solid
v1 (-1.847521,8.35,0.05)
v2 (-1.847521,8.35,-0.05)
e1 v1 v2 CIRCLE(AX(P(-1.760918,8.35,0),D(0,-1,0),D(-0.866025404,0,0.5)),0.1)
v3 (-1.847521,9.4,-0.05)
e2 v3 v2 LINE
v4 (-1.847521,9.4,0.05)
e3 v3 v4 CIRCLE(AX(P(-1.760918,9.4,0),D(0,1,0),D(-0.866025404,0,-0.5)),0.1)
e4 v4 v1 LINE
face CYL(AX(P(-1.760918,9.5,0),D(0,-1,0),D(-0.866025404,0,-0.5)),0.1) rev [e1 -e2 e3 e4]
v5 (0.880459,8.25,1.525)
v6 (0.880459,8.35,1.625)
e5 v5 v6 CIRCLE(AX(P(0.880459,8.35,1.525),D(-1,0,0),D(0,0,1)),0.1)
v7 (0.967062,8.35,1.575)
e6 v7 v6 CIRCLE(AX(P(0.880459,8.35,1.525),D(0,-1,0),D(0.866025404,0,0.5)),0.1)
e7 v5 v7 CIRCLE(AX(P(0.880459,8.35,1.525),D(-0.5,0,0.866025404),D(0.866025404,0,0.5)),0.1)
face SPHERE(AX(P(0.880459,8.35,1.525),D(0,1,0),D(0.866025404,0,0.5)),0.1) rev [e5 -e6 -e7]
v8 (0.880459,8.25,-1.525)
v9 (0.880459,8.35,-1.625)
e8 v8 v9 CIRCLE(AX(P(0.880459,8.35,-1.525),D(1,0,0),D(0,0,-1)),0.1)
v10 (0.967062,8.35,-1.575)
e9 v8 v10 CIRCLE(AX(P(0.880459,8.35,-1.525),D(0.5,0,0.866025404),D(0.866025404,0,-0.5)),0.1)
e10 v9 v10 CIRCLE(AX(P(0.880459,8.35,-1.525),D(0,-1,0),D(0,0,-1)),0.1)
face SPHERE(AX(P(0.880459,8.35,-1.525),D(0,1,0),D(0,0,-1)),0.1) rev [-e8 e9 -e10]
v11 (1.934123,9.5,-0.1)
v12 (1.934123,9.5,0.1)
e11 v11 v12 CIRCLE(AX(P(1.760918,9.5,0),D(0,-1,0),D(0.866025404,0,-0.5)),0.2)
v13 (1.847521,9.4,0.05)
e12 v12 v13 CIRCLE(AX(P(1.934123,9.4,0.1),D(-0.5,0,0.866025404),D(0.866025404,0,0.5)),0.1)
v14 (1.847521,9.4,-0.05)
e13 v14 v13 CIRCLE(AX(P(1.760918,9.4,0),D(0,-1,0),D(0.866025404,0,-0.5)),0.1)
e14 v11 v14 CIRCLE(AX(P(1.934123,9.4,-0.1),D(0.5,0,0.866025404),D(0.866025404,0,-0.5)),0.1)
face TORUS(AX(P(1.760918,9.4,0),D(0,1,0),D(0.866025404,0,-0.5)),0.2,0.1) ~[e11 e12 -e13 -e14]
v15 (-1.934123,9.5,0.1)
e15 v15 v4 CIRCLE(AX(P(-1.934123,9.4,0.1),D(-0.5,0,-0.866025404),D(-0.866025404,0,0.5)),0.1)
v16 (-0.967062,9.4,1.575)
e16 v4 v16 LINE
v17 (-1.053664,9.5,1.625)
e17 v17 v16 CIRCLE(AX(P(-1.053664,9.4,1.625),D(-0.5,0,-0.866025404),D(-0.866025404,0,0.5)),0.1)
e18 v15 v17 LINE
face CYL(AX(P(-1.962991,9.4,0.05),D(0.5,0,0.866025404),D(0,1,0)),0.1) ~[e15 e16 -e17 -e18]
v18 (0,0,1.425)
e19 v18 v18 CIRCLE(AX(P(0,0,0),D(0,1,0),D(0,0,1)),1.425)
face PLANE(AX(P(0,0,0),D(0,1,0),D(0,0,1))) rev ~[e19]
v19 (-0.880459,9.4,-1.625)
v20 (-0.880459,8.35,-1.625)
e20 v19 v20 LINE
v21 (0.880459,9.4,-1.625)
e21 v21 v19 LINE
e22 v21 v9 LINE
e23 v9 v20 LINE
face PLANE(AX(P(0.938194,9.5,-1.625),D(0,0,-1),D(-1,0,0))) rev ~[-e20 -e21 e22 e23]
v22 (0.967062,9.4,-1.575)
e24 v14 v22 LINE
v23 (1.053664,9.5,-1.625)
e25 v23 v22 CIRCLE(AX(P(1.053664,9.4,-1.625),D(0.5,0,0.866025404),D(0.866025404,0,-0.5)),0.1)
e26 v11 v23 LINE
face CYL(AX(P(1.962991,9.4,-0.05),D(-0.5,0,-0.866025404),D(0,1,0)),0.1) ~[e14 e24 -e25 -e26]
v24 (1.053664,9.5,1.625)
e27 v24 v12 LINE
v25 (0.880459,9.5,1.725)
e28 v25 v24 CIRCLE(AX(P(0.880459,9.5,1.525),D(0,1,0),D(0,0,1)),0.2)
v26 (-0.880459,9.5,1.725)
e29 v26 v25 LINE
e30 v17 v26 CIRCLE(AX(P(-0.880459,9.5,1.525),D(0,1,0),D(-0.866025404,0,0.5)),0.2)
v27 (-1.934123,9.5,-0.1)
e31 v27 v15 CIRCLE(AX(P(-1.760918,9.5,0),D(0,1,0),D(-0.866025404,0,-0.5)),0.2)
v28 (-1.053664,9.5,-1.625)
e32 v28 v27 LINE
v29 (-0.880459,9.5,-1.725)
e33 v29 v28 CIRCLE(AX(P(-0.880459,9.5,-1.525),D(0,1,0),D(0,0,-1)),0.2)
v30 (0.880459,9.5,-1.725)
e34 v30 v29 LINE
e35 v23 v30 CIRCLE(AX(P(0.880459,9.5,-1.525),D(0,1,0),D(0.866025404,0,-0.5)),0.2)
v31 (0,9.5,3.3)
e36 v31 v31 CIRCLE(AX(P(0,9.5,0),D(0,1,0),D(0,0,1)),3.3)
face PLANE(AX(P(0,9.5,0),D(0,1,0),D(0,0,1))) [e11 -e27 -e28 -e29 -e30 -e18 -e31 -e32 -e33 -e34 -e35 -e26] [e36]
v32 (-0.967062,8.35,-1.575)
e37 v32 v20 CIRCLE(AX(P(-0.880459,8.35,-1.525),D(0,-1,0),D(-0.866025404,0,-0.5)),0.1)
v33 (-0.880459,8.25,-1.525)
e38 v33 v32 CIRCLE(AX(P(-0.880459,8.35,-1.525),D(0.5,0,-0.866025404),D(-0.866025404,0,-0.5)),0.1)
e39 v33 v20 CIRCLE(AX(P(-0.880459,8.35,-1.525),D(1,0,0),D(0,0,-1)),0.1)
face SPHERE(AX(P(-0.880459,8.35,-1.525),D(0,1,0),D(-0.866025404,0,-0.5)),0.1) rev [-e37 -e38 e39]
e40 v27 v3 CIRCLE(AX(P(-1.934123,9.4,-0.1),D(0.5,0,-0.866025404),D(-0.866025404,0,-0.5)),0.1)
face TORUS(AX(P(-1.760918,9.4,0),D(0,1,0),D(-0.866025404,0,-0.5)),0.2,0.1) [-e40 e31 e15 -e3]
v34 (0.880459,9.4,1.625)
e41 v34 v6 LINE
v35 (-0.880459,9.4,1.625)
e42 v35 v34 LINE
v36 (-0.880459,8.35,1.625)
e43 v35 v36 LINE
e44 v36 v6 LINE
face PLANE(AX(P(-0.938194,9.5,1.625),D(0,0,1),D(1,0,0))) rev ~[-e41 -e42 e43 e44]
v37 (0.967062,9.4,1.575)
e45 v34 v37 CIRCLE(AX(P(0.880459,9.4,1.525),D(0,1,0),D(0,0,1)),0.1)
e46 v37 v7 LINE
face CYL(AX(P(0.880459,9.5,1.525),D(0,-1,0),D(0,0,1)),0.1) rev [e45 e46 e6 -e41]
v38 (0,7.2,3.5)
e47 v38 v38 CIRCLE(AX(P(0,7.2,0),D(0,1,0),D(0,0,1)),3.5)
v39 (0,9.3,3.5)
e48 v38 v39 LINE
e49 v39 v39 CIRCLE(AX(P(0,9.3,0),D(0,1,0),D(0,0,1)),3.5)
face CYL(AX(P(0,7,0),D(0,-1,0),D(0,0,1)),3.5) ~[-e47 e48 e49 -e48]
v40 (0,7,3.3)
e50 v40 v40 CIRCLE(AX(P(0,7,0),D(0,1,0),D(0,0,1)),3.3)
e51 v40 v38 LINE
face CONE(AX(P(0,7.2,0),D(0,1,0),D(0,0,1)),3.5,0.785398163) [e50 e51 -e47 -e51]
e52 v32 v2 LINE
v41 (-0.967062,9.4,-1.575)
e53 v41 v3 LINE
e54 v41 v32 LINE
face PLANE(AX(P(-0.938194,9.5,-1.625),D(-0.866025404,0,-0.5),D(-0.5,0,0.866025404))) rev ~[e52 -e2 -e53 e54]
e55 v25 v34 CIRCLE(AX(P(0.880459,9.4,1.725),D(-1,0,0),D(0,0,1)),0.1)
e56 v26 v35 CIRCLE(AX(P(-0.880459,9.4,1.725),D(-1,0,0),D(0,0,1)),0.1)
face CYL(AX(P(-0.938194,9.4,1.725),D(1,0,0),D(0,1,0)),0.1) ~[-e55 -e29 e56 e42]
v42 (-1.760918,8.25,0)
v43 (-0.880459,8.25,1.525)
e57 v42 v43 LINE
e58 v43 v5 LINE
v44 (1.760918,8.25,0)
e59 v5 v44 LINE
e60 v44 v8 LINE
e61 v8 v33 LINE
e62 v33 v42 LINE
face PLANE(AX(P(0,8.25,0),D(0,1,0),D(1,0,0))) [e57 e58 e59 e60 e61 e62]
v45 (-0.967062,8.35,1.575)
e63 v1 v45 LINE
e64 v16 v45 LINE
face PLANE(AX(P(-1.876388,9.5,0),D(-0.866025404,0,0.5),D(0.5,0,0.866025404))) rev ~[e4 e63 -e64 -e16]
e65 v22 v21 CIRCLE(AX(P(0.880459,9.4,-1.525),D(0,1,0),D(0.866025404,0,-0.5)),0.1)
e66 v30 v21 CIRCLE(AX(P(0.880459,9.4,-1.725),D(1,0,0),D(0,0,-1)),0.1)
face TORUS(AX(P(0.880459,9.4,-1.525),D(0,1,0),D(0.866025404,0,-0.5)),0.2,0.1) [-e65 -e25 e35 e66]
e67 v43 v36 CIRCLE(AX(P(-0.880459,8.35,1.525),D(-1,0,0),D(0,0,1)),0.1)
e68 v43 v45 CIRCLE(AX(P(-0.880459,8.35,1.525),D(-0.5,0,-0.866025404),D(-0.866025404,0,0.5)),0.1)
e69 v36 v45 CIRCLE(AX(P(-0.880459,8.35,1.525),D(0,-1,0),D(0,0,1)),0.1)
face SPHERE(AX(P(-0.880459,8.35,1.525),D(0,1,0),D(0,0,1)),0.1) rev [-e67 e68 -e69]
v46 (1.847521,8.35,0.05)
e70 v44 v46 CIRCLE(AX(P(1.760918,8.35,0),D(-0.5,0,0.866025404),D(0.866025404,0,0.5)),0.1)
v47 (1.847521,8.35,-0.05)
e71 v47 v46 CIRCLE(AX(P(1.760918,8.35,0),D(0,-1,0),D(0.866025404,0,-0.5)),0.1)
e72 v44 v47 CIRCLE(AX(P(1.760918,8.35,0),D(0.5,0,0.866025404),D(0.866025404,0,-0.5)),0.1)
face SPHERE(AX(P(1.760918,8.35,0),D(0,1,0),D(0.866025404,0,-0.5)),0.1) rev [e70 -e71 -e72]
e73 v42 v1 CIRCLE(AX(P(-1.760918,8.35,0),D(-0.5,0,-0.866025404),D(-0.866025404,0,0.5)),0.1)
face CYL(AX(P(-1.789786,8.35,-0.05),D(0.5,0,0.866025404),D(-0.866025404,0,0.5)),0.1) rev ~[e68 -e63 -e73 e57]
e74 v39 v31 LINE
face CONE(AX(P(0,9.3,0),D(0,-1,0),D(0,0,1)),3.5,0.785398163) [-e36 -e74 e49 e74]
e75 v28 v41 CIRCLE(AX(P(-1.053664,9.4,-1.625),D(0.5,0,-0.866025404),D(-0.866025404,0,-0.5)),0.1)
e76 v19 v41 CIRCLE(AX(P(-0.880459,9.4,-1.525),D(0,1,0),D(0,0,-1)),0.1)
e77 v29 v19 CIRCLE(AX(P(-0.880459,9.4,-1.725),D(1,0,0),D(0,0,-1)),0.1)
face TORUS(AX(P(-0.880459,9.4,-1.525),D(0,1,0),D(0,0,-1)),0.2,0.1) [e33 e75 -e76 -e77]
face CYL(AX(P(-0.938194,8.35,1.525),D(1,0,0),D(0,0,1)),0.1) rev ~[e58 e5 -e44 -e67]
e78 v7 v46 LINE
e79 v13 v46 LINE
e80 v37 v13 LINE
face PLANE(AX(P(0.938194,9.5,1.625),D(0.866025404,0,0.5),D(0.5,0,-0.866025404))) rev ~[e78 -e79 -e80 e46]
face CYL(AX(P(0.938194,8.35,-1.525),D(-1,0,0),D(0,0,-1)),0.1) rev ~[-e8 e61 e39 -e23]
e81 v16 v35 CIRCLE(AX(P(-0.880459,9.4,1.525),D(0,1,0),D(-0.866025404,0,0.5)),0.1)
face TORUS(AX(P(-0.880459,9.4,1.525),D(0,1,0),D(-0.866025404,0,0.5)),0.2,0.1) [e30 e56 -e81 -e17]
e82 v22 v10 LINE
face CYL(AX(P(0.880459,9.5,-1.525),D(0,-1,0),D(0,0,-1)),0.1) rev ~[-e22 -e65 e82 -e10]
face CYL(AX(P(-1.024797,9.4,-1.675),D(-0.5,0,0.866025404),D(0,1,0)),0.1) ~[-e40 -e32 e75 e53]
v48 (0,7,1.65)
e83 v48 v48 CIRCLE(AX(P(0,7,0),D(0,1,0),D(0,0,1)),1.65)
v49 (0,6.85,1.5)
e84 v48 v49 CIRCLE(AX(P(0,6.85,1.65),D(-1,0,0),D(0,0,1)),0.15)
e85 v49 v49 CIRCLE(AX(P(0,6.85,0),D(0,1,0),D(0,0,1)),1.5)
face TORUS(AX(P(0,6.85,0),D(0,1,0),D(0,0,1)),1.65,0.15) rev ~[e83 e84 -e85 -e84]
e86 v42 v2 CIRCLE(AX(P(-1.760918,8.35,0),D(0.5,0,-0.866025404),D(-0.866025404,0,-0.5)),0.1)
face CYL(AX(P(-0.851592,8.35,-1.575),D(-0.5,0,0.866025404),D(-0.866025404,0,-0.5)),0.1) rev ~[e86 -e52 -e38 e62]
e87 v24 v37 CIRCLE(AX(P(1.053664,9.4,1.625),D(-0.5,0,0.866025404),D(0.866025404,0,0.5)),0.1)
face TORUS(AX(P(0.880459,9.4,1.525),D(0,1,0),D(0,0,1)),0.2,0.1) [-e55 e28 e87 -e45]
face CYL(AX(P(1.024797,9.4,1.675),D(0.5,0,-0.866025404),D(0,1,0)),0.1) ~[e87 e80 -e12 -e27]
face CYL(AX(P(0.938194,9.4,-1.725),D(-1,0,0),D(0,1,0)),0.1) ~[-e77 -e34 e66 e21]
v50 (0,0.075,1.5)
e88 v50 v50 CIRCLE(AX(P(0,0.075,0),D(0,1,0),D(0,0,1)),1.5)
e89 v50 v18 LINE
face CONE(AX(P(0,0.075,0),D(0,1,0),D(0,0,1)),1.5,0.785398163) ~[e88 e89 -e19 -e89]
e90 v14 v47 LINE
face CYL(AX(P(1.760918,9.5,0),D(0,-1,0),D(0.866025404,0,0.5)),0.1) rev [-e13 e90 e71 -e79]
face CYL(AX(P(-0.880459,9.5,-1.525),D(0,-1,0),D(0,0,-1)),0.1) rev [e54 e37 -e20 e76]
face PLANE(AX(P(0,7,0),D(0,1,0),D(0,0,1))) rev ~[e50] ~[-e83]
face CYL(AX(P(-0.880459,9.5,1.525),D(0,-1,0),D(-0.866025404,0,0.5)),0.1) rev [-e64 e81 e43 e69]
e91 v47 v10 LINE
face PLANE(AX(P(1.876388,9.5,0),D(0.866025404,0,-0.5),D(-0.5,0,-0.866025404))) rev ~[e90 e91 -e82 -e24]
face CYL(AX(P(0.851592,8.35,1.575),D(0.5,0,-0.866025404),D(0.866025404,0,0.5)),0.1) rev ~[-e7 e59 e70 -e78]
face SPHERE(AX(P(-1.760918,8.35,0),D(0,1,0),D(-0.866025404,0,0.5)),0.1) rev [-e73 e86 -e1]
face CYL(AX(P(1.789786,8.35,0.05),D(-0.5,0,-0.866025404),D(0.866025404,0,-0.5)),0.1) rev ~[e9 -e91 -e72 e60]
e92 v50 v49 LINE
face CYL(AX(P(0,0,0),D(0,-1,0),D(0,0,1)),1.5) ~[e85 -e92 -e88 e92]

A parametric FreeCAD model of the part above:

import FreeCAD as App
import Part
import Sketcher
from FreeCAD import Vector
Q = App.Units.Quantity


def edges_at(feature, points):
    """Names of the edges that pass closest to the given points."""
    edges = feature.Shape.Edges
    near = lambda p: min(range(len(edges)), key=lambda i: edges[i].distToShape(Part.Vertex(*p))[0])
    return sorted({f"Edge{near(p) + 1}" for p in points})


def add_polygon(sketch, points):
    """Adds a closed chain of lines whose ends are joined by coincident constraints."""
    first, n = sketch.GeometryCount, len(points)
    for a, b in zip(points, points[1:] + points[:1]):
        sketch.addGeometry(Part.LineSegment(App.Vector(*a, 0), App.Vector(*b, 0)), False)
    for i in range(n):
        sketch.addConstraint(Sketcher.Constraint("Coincident", first + i, 2, first + (i + 1) % n, 1))

doc = App.newDocument("Part")
body = doc.addObject("PartDesign::Body", "Body")

sketch1 = body.newObject("Sketcher::SketchObject", "Sketch")
sketch1.AttachmentSupport = (doc.getObject("XZ_Plane"), [""])
sketch1.MapMode = "FlatFace"
sketch1.addGeometry(Part.Circle(Vector(0, 0, 0), Vector(0, 0, 1), 1.5), False)
sketch1.addConstraint([
    Sketcher.Constraint("Coincident", 0, 3, -1, 1),
    Sketcher.Constraint("Diameter", 0, Q("3 mm")),
])
pad1 = body.newObject("PartDesign::Pad", "Pad")
pad1.Profile = sketch1
pad1.Length = 7
pad1.Reversed = True

sketch2 = body.newObject("Sketcher::SketchObject", "Sketch001")
sketch2.AttachmentSupport = (doc.getObject("XZ_Plane"), [""])
sketch2.MapMode = "FlatFace"
sketch2.AttachmentOffset = App.Placement(Vector(0, 0, -7), App.Rotation())
sketch2.addGeometry(Part.Circle(Vector(0, 0, 0), Vector(0, 0, 1), 3.5), False)
sketch2.addConstraint([
    Sketcher.Constraint("Coincident", 0, 3, -1, 1),
    Sketcher.Constraint("Diameter", 0, Q("7 mm")),
])
pad2 = body.newObject("PartDesign::Pad", "Pad001")
pad2.Profile = sketch2
pad2.Length = 2.5
pad2.Reversed = True
doc.recompute()

fillet = body.newObject("PartDesign::Fillet", "Fillet")
fillet.Base = (pad2, edges_at(pad2, [(0, 7, -1.5)]))
fillet.Radius = 0.15
doc.recompute()

chamfer = body.newObject("PartDesign::Chamfer", "Chamfer")
chamfer.Base = (fillet, edges_at(fillet, [(0, 7, -3.5), (0, 9.5, -3.5)]))
chamfer.Size = 0.2

sketch3 = body.newObject("Sketcher::SketchObject", "Sketch002")
sketch3.AttachmentSupport = (doc.getObject("XZ_Plane"), [""])
sketch3.MapMode = "FlatFace"
sketch3.AttachmentOffset = App.Placement(Vector(0, 0, -9.5), App.Rotation())
add_polygon(sketch3, [(0.9, -1.6), (-0.9, -1.6), (-1.9, 0), (-0.9, 1.6), (0.9, 1.6), (1.9, 0)])
sketch3.addConstraint([
    Sketcher.Constraint("Horizontal", 0),
    Sketcher.Constraint("Horizontal", 3),
    Sketcher.Constraint("Symmetric", 0, 2, 3, 2, -1, 1),
    Sketcher.Constraint("Symmetric", 1, 2, 4, 2, -1, 1),
    Sketcher.Constraint("PointOnObject", 1, 2, -1),
    Sketcher.Constraint("Parallel", 2, 5),
    Sketcher.Constraint("Vertical", 0, 2, 2, 2),
    Sketcher.Constraint("Angle", 1, Q("120 deg")),
    Sketcher.Constraint("DistanceY", 0, 2, 2, 2, Q("3.25 mm")),
    Sketcher.Constraint("DistanceX", 0, 2, 0, 1, Q("1.876388 mm")),
])
pocket1 = body.newObject("PartDesign::Pocket", "Pocket")
pocket1.Profile = sketch3
pocket1.Length = 1.25
pocket1.Reversed = True
doc.recompute()

chamfer2 = body.newObject("PartDesign::Chamfer", "Chamfer001")
chamfer2.Base = (pocket1, edges_at(pocket1, [(0, 0, -1.5)]))
chamfer2.Size = 0.075
doc.recompute()

fillet2 = body.newObject("PartDesign::Fillet", "Fillet001")
fillet2.Base = (chamfer2, edges_at(chamfer2, [
    (1.407, 8.25, -0.812),
    (0.938, 8.875, -1.625),
    (1.407, 8.25, 0.812),
    (1.876, 8.875, 0),
    (0, 8.25, 1.625),
    (0.938, 8.875, 1.625),
    (-1.407, 8.25, 0.812),
    (-0.938, 8.875, 1.625),
    (-1.407, 8.25, -0.812),
    (-1.876, 8.875, 0),
    (0, 8.25, -1.625),
    (-0.938, 8.875, -1.625),
    (1.407, 9.5, -0.812),
    (0, 9.5, -1.625),
    (-1.407, 9.5, -0.812),
    (-1.407, 9.5, 0.812),
    (0, 9.5, 1.625),
    (1.407, 9.5, 0.812),
]))
fillet2.Radius = 0.1

doc.recompute()
